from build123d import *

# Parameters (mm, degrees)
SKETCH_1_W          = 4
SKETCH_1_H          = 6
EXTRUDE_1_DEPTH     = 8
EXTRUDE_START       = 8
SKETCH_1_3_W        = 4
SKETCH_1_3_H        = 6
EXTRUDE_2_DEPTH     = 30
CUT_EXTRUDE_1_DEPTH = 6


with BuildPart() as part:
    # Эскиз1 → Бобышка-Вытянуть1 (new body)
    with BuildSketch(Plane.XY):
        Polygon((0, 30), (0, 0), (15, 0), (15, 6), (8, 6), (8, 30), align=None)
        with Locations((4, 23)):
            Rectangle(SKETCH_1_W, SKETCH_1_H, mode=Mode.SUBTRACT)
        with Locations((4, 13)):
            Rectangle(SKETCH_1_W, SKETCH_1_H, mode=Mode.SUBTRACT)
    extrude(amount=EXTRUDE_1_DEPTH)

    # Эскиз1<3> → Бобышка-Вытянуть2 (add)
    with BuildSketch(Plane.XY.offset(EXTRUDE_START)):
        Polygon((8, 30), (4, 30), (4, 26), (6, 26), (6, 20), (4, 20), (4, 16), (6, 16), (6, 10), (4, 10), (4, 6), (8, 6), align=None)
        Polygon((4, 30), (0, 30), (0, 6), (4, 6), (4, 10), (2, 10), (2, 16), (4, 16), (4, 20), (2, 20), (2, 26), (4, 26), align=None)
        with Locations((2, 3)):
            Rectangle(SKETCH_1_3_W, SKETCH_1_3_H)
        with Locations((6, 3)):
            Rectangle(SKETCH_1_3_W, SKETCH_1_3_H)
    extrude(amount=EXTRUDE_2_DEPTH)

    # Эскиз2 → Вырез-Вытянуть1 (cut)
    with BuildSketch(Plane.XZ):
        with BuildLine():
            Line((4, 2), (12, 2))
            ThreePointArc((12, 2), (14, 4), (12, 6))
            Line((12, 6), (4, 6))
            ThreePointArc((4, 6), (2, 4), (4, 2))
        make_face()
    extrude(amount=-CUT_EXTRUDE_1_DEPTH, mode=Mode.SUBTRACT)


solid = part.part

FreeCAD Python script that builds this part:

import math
import FreeCAD as App
import Part
import Sketcher

doc = App.newDocument("Part")
body = doc.addObject("PartDesign::Body", "Body")

# Sketch on XY plane
sketch1 = doc.addObject("Sketcher::SketchObject", "Sketch")
body.addObject(sketch1)
sketch1.AttachmentSupport = (doc.XY_Plane, [""])
sketch1.MapMode = "FlatFace"
sketch1.addGeometry(Part.LineSegment(App.Vector(0, 30, 0), App.Vector(0, 0, 0)), False)
sketch1.addGeometry(Part.LineSegment(App.Vector(0, 0, 0), App.Vector(15, 0, 0)), False)
sketch1.addGeometry(Part.LineSegment(App.Vector(15, 0, 0), App.Vector(15, 6, 0)), False)
sketch1.addGeometry(Part.LineSegment(App.Vector(15, 6, 0), App.Vector(8, 6, 0)), False)
sketch1.addGeometry(Part.LineSegment(App.Vector(8, 6, 0), App.Vector(8, 30, 0)), False)
sketch1.addGeometry(Part.LineSegment(App.Vector(8, 30, 0), App.Vector(0, 30, 0)), False)
sketch1.addGeometry(Part.LineSegment(App.Vector(6, 10, 0), App.Vector(2, 10, 0)), False)
sketch1.addGeometry(Part.LineSegment(App.Vector(2, 10, 0), App.Vector(2, 16, 0)), False)
sketch1.addGeometry(Part.LineSegment(App.Vector(2, 16, 0), App.Vector(6, 16, 0)), False)
sketch1.addGeometry(Part.LineSegment(App.Vector(6, 16, 0), App.Vector(6, 10, 0)), False)
sketch1.addGeometry(Part.LineSegment(App.Vector(6, 20, 0), App.Vector(2, 20, 0)), False)
sketch1.addGeometry(Part.LineSegment(App.Vector(2, 20, 0), App.Vector(2, 26, 0)), False)
sketch1.addGeometry(Part.LineSegment(App.Vector(2, 26, 0), App.Vector(6, 26, 0)), False)
sketch1.addGeometry(Part.LineSegment(App.Vector(6, 26, 0), App.Vector(6, 20, 0)), False)
sketch1.addConstraint(Sketcher.Constraint("Coincident", 0, 2, 1, 1))
sketch1.addConstraint(Sketcher.Constraint("Coincident", 1, 2, 2, 1))
sketch1.addConstraint(Sketcher.Constraint("Coincident", 2, 2, 3, 1))
sketch1.addConstraint(Sketcher.Constraint("Coincident", 3, 2, 4, 1))
sketch1.addConstraint(Sketcher.Constraint("Coincident", 4, 2, 5, 1))
sketch1.addConstraint(Sketcher.Constraint("Coincident", 5, 2, 0, 1))
sketch1.addConstraint(Sketcher.Constraint("Coincident", 6, 2, 7, 1))
sketch1.addConstraint(Sketcher.Constraint("Coincident", 7, 2, 8, 1))
sketch1.addConstraint(Sketcher.Constraint("Coincident", 8, 2, 9, 1))
sketch1.addConstraint(Sketcher.Constraint("Coincident", 9, 2, 6, 1))
sketch1.addConstraint(Sketcher.Constraint("Coincident", 10, 2, 11, 1))
sketch1.addConstraint(Sketcher.Constraint("Coincident", 11, 2, 12, 1))
sketch1.addConstraint(Sketcher.Constraint("Coincident", 12, 2, 13, 1))
sketch1.addConstraint(Sketcher.Constraint("Coincident", 13, 2, 10, 1))
sketch1.addConstraint(Sketcher.Constraint("Vertical", 0))
sketch1.addConstraint(Sketcher.Constraint("Horizontal", 1))
sketch1.addConstraint(Sketcher.Constraint("Vertical", 2))
sketch1.addConstraint(Sketcher.Constraint("Horizontal", 3))
sketch1.addConstraint(Sketcher.Constraint("Vertical", 4))
sketch1.addConstraint(Sketcher.Constraint("Horizontal", 5))
sketch1.addConstraint(Sketcher.Constraint("Horizontal", 6))
sketch1.addConstraint(Sketcher.Constraint("Vertical", 7))
sketch1.addConstraint(Sketcher.Constraint("Horizontal", 8))
sketch1.addConstraint(Sketcher.Constraint("Vertical", 9))
sketch1.addConstraint(Sketcher.Constraint("Horizontal", 10))
sketch1.addConstraint(Sketcher.Constraint("Vertical", 11))
sketch1.addConstraint(Sketcher.Constraint("Horizontal", 12))
sketch1.addConstraint(Sketcher.Constraint("Vertical", 13))
sketch1.addConstraint(Sketcher.Constraint("Coincident", 0, 2, -1, 1))
sketch1.addConstraint(Sketcher.Constraint("Vertical", 7, 2, 10, 2))
sketch1.addConstraint(Sketcher.Constraint("Vertical", 9, 2, 12, 2))
sketch1.addConstraint(Sketcher.Constraint("Equal", 2, 7))
sketch1.addConstraint(Sketcher.Constraint("Equal", 9, 11))
sketch1.addConstraint(Sketcher.Constraint("DistanceX", 1, 1, 1, 2, 15.0))
sketch1.addConstraint(Sketcher.Constraint("DistanceX", 3, 2, 3, 1, 7.0))
sketch1.addConstraint(Sketcher.Constraint("DistanceX", 6, 2, 6, 1, 4.0))
sketch1.addConstraint(Sketcher.Constraint("DistanceY", 0, 2, 0, 1, 30.0))
sketch1.addConstraint(Sketcher.Constraint("DistanceY", 2, 1, 2, 2, 6.0))
sketch1.addConstraint(Sketcher.Constraint("DistanceX", -1, 1, 6, 2, 2.0))
sketch1.addConstraint(Sketcher.Constraint("DistanceY", -1, 1, 6, 2, 10.0))
sketch1.addConstraint(Sketcher.Constraint("DistanceY", -1, 1, 10, 2, 20.0))
pad1 = doc.addObject("PartDesign::Pad", "Pad")
body.addObject(pad1)
pad1.Profile = sketch1
pad1.Length = 8

# Sketch on XY plane
sketch2 = doc.addObject("Sketcher::SketchObject", "Sketch001")
body.addObject(sketch2)
sketch2.AttachmentSupport = (doc.XY_Plane, [""])
sketch2.MapMode = "FlatFace"
sketch2.AttachmentOffset = App.Placement(App.Vector(0, 0, 8), App.Rotation())
sketch2.addGeometry(Part.LineSegment(App.Vector(8, 30, 0), App.Vector(0, 30, 0)), False)
sketch2.addGeometry(Part.LineSegment(App.Vector(0, 30, 0), App.Vector(0, 0, 0)), False)
sketch2.addGeometry(Part.LineSegment(App.Vector(0, 0, 0), App.Vector(8, 0, 0)), False)
sketch2.addGeometry(Part.LineSegment(App.Vector(8, 0, 0), App.Vector(8, 30, 0)), False)
sketch2.addGeometry(Part.LineSegment(App.Vector(6, 26, 0), App.Vector(6, 20, 0)), False)
sketch2.addGeometry(Part.LineSegment(App.Vector(6, 20, 0), App.Vector(2, 20, 0)), False)
sketch2.addGeometry(Part.LineSegment(App.Vector(2, 20, 0), App.Vector(2, 26, 0)), False)
sketch2.addGeometry(Part.LineSegment(App.Vector(2, 26, 0), App.Vector(6, 26, 0)), False)
sketch2.addGeometry(Part.LineSegment(App.Vector(6, 16, 0), App.Vector(6, 10, 0)), False)
sketch2.addGeometry(Part.LineSegment(App.Vector(6, 10, 0), App.Vector(2, 10, 0)), False)
sketch2.addGeometry(Part.LineSegment(App.Vector(2, 10, 0), App.Vector(2, 16, 0)), False)
sketch2.addGeometry(Part.LineSegment(App.Vector(2, 16, 0), App.Vector(6, 16, 0)), False)
sketch2.addConstraint(Sketcher.Constraint("Coincident", 0, 2, 1, 1))
sketch2.addConstraint(Sketcher.Constraint("Coincident", 1, 2, 2, 1))
sketch2.addConstraint(Sketcher.Constraint("Coincident", 2, 2, 3, 1))
sketch2.addConstraint(Sketcher.Constraint("Coincident", 3, 2, 0, 1))
sketch2.addConstraint(Sketcher.Constraint("Coincident", 4, 2, 5, 1))
sketch2.addConstraint(Sketcher.Constraint("Coincident", 5, 2, 6, 1))
sketch2.addConstraint(Sketcher.Constraint("Coincident", 6, 2, 7, 1))
sketch2.addConstraint(Sketcher.Constraint("Coincident", 7, 2, 4, 1))
sketch2.addConstraint(Sketcher.Constraint("Coincident", 8, 2, 9, 1))
sketch2.addConstraint(Sketcher.Constraint("Coincident", 9, 2, 10, 1))
sketch2.addConstraint(Sketcher.Constraint("Coincident", 10, 2, 11, 1))
sketch2.addConstraint(Sketcher.Constraint("Coincident", 11, 2, 8, 1))
sketch2.addConstraint(Sketcher.Constraint("Horizontal", 0))
sketch2.addConstraint(Sketcher.Constraint("Vertical", 1))
sketch2.addConstraint(Sketcher.Constraint("Horizontal", 2))
sketch2.addConstraint(Sketcher.Constraint("Vertical", 3))
sketch2.addConstraint(Sketcher.Constraint("Vertical", 4))
sketch2.addConstraint(Sketcher.Constraint("Horizontal", 5))
sketch2.addConstraint(Sketcher.Constraint("Vertical", 6))
sketch2.addConstraint(Sketcher.Constraint("Horizontal", 7))
sketch2.addConstraint(Sketcher.Constraint("Vertical", 8))
sketch2.addConstraint(Sketcher.Constraint("Horizontal", 9))
sketch2.addConstraint(Sketcher.Constraint("Vertical", 10))
sketch2.addConstraint(Sketcher.Constraint("Horizontal", 11))
sketch2.addConstraint(Sketcher.Constraint("Coincident", 1, 2, -1, 1))
sketch2.addConstraint(Sketcher.Constraint("Vertical", 7, 2, 8, 2))
sketch2.addConstraint(Sketcher.Constraint("Vertical", 6, 2, 9, 2))
sketch2.addConstraint(Sketcher.Constraint("Equal", 6, 8))
sketch2.addConstraint(Sketcher.Constraint("DistanceX", 0, 2, 0, 1, 8.0))
sketch2.addConstraint(Sketcher.Constraint("DistanceX", 5, 2, 5, 1, 4.0))
sketch2.addConstraint(Sketcher.Constraint("DistanceY", 1, 2, 1, 1, 30.0))
sketch2.addConstraint(Sketcher.Constraint("DistanceY", 4, 2, 4, 1, 6.0))
sketch2.addConstraint(Sketcher.Constraint("DistanceX", -1, 1, 4, 2, 6.0))
sketch2.addConstraint(Sketcher.Constraint("DistanceY", -1, 1, 4, 2, 20.0))
sketch2.addConstraint(Sketcher.Constraint("DistanceY", -1, 1, 8, 2, 10.0))
pad2 = doc.addObject("PartDesign::Pad", "Pad001")
body.addObject(pad2)
pad2.Profile = sketch2
pad2.Length = 30

# Sketch on XZ plane
sketch3 = doc.addObject("Sketcher::SketchObject", "Sketch002")
body.addObject(sketch3)
sketch3.AttachmentSupport = (doc.XZ_Plane, [""])
sketch3.MapMode = "FlatFace"
sketch3.addGeometry(Part.LineSegment(App.Vector(4, 2, 0), App.Vector(12, 2, 0)), False)
sketch3.addGeometry(Part.ArcOfCircle(Part.Circle(App.Vector(12, 4, 0), App.Vector(0, 0, 1), 2), math.radians(-90), math.radians(90)), False)
sketch3.addGeometry(Part.LineSegment(App.Vector(12, 6, 0), App.Vector(4, 6, 0)), False)
sketch3.addGeometry(Part.ArcOfCircle(Part.Circle(App.Vector(4, 4, 0), App.Vector(0, 0, 1), 2), math.radians(90), math.radians(270)), False)
sketch3.addConstraint(Sketcher.Constraint("Tangent", 0, 2, 1, 1))
sketch3.addConstraint(Sketcher.Constraint("Tangent", 1, 2, 2, 1))
sketch3.addConstraint(Sketcher.Constraint("Tangent", 2, 2, 3, 1))
sketch3.addConstraint(Sketcher.Constraint("Tangent", 3, 2, 0, 1))
sketch3.addConstraint(Sketcher.Constraint("Horizontal", 0))
sketch3.addConstraint(Sketcher.Constraint("Horizontal", 2))
sketch3.addConstraint(Sketcher.Constraint("Radius", 1, 2.0))
sketch3.addConstraint(Sketcher.Constraint("DistanceX", 0, 1, 0, 2, 8.0))
sketch3.addConstraint(Sketcher.Constraint("DistanceX", -1, 1, 1, 3, 12.0))
sketch3.addConstraint(Sketcher.Constraint("DistanceY", -1, 1, 1, 3, 4.0))
pocket1 = doc.addObject("PartDesign::Pocket", "Pocket")
body.addObject(pocket1)
pocket1.Profile = sketch3
pocket1.Length = 6

doc.recompute()
